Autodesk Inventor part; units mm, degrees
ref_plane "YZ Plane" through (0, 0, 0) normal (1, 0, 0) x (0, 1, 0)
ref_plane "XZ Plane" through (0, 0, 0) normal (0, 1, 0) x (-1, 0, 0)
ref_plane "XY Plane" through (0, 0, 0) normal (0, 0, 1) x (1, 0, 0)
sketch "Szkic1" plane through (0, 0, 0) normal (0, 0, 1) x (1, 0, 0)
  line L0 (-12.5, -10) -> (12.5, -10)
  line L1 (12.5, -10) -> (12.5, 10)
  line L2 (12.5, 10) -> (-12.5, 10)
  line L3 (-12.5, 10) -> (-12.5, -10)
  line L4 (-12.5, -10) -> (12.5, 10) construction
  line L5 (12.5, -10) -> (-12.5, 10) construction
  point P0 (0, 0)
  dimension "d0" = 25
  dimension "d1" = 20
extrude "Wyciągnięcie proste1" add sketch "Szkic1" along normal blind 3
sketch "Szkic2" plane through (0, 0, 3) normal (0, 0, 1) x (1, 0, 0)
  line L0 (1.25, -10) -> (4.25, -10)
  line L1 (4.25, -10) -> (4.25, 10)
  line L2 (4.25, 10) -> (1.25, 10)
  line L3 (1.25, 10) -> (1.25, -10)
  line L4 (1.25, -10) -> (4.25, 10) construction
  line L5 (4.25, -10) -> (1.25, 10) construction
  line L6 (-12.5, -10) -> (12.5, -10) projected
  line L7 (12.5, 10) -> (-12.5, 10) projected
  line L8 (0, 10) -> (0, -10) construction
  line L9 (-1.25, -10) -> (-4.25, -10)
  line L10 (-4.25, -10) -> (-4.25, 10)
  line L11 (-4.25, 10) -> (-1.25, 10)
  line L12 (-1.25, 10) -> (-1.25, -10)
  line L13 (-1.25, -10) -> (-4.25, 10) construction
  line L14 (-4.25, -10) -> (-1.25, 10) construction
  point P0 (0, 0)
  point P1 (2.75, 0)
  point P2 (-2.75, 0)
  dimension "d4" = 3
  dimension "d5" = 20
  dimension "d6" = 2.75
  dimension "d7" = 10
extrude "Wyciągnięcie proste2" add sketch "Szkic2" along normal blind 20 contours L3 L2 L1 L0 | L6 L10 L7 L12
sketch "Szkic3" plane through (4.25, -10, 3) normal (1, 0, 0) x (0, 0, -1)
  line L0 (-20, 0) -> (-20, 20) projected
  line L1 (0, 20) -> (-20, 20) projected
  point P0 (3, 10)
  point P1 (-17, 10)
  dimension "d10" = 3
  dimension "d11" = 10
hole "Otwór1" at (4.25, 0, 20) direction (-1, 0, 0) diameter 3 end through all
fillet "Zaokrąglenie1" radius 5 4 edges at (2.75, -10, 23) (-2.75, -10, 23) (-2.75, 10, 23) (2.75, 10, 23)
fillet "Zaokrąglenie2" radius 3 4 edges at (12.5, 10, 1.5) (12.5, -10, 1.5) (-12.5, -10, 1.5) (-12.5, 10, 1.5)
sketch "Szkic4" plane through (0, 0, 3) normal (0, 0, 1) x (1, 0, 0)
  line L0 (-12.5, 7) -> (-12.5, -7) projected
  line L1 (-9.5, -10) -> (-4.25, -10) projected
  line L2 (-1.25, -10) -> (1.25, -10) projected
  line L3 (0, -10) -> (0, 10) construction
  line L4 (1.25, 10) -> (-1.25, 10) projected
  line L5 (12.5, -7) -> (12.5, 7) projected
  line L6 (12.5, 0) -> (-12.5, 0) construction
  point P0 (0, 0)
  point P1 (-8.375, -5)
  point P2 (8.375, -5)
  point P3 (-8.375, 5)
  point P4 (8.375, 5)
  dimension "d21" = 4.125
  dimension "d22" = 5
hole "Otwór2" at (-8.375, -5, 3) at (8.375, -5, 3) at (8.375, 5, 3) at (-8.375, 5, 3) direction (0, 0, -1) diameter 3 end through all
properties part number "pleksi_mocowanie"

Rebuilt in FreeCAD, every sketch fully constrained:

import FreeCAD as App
import Part
import Sketcher

V = App.Vector


def edges_at(feature, points):
    """Names of the edges that pass closest to the given points."""
    edges = feature.Shape.Edges
    near = lambda p: min(range(len(edges)), key=lambda i: edges[i].distToShape(Part.Vertex(*p))[0])
    return sorted({f"Edge{near(p) + 1}" for p in points})

doc = App.newDocument("Part")
body = doc.addObject("PartDesign::Body", "Body")

# Sketch on XY plane
sketch1 = body.newObject("Sketcher::SketchObject", "Sketch")
sketch1.AttachmentSupport = (doc.getObject("XY_Plane"), [""])
sketch1.MapMode = "FlatFace"
sketch1.addGeometry(Part.LineSegment(V(-12.5, 10, 0), V(-12.5, -10, 0)), False)
sketch1.addGeometry(Part.LineSegment(V(-12.5, -10, 0), V(12.5, -10, 0)), False)
sketch1.addGeometry(Part.LineSegment(V(12.5, -10, 0), V(12.5, 10, 0)), False)
sketch1.addGeometry(Part.LineSegment(V(12.5, 10, 0), V(-12.5, 10, 0)), False)
sketch1.addConstraint(Sketcher.Constraint("Coincident", 0, 2, 1, 1))
sketch1.addConstraint(Sketcher.Constraint("Coincident", 1, 2, 2, 1))
sketch1.addConstraint(Sketcher.Constraint("Coincident", 2, 2, 3, 1))
sketch1.addConstraint(Sketcher.Constraint("Coincident", 3, 2, 0, 1))
sketch1.addConstraint(Sketcher.Constraint("Vertical", 0))
sketch1.addConstraint(Sketcher.Constraint("Horizontal", 1))
sketch1.addConstraint(Sketcher.Constraint("Vertical", 2))
sketch1.addConstraint(Sketcher.Constraint("Horizontal", 3))
sketch1.addConstraint(Sketcher.Constraint("Symmetric", 0, 2, 2, 2, -1, 1))
sketch1.addConstraint(Sketcher.Constraint("DistanceX", 1, 1, 1, 2, 25.0))
sketch1.addConstraint(Sketcher.Constraint("DistanceY", 0, 2, 0, 1, 20.0))
pad1 = body.newObject("PartDesign::Pad", "Pad")
pad1.Profile = sketch1
pad1.Length = 3

# Sketch on XY plane
sketch2 = body.newObject("Sketcher::SketchObject", "Sketch001")
sketch2.AttachmentSupport = (doc.getObject("XY_Plane"), [""])
sketch2.MapMode = "FlatFace"
sketch2.AttachmentOffset = App.Placement(V(0, 0, 3), App.Rotation())
sketch2.addGeometry(Part.LineSegment(V(1.25, 10, 0), V(1.25, -10, 0)), False)
sketch2.addGeometry(Part.LineSegment(V(1.25, -10, 0), V(4.25, -10, 0)), False)
sketch2.addGeometry(Part.LineSegment(V(4.25, -10, 0), V(4.25, 10, 0)), False)
sketch2.addGeometry(Part.LineSegment(V(4.25, 10, 0), V(1.25, 10, 0)), False)
sketch2.addGeometry(Part.LineSegment(V(-4.25, -10, 0), V(-1.25, -10, 0)), False)
sketch2.addGeometry(Part.LineSegment(V(-1.25, -10, 0), V(-1.25, 10, 0)), False)
sketch2.addGeometry(Part.LineSegment(V(-1.25, 10, 0), V(-4.25, 10, 0)), False)
sketch2.addGeometry(Part.LineSegment(V(-4.25, 10, 0), V(-4.25, -10, 0)), False)
sketch2.addConstraint(Sketcher.Constraint("Coincident", 0, 2, 1, 1))
sketch2.addConstraint(Sketcher.Constraint("Coincident", 1, 2, 2, 1))
sketch2.addConstraint(Sketcher.Constraint("Coincident", 2, 2, 3, 1))
sketch2.addConstraint(Sketcher.Constraint("Coincident", 3, 2, 0, 1))
sketch2.addConstraint(Sketcher.Constraint("Coincident", 4, 2, 5, 1))
sketch2.addConstraint(Sketcher.Constraint("Coincident", 5, 2, 6, 1))
sketch2.addConstraint(Sketcher.Constraint("Coincident", 6, 2, 7, 1))
sketch2.addConstraint(Sketcher.Constraint("Coincident", 7, 2, 4, 1))
sketch2.addConstraint(Sketcher.Constraint("Vertical", 0))
sketch2.addConstraint(Sketcher.Constraint("Horizontal", 1))
sketch2.addConstraint(Sketcher.Constraint("Vertical", 2))
sketch2.addConstraint(Sketcher.Constraint("Horizontal", 3))
sketch2.addConstraint(Sketcher.Constraint("Horizontal", 4))
sketch2.addConstraint(Sketcher.Constraint("Vertical", 5))
sketch2.addConstraint(Sketcher.Constraint("Horizontal", 6))
sketch2.addConstraint(Sketcher.Constraint("Vertical", 7))
sketch2.addConstraint(Sketcher.Constraint("Symmetric", 3, 2, 4, 2, -1, 1))
sketch2.addConstraint(Sketcher.Constraint("Symmetric", 1, 2, 6, 2, -1, 1))
sketch2.addConstraint(Sketcher.Constraint("Horizontal", 1, 2, 4, 2))
sketch2.addConstraint(Sketcher.Constraint("DistanceX", 1, 1, 1, 2, 3.0))
sketch2.addConstraint(Sketcher.Constraint("DistanceY", 0, 2, 0, 1, 20.0))
sketch2.addConstraint(Sketcher.Constraint("DistanceX", 4, 2, 0, 2, 2.5))
pad2 = body.newObject("PartDesign::Pad", "Pad001")
pad2.Profile = sketch2
pad2.Length = 20

# Sketch on YZ plane
sketch3 = body.newObject("Sketcher::SketchObject", "Sketch002")
sketch3.AttachmentSupport = (doc.getObject("YZ_Plane"), [""])
sketch3.MapMode = "FlatFace"
sketch3.AttachmentOffset = App.Placement(V(0, 0, 4.25), App.Rotation())
sketch3.addGeometry(Part.Circle(V(0, 20, 0), V(0, 0, 1), 1.5), False)
sketch3.addConstraint(Sketcher.Constraint("PointOnObject", 0, 3, -2))
sketch3.addConstraint(Sketcher.Constraint("Diameter", 0, 3.0))
sketch3.addConstraint(Sketcher.Constraint("DistanceY", -1, 1, 0, 3, 20.0))
doc.recompute()
hole = body.newObject("PartDesign::Hole", "Hole")
hole.Profile = sketch3
hole.ThreadType = "None"
hole.Diameter = 3
hole.DepthType = "ThroughAll"
doc.recompute()

fillet = body.newObject("PartDesign::Fillet", "Fillet")
fillet.Base = (hole, edges_at(hole, [
    (2.75, -10, 23),
    (-2.75, -10, 23),
    (-2.75, 10, 23),
    (2.75, 10, 23),
]))
fillet.Radius = 5
doc.recompute()

fillet2 = body.newObject("PartDesign::Fillet", "Fillet001")
fillet2.Base = (fillet, edges_at(fillet, [
    (12.5, 10, 1.5),
    (12.5, -10, 1.5),
    (-12.5, -10, 1.5),
    (-12.5, 10, 1.5),
]))
fillet2.Radius = 3

# Sketch on XY plane
sketch4 = body.newObject("Sketcher::SketchObject", "Sketch003")
sketch4.AttachmentSupport = (doc.getObject("XY_Plane"), [""])
sketch4.MapMode = "FlatFace"
sketch4.AttachmentOffset = App.Placement(V(0, 0, 3), App.Rotation())
sketch4.addGeometry(Part.Circle(V(-8.375, -5, 0), V(0, 0, 1), 1.5), False)
sketch4.addGeometry(Part.Circle(V(8.375, -5, 0), V(0, 0, 1), 1.5), False)
sketch4.addGeometry(Part.Circle(V(8.375, 5, 0), V(0, 0, 1), 1.5), False)
sketch4.addGeometry(Part.Circle(V(-8.375, 5, 0), V(0, 0, 1), 1.5), False)
sketch4.addConstraint(Sketcher.Constraint("Equal", 0, 1))
sketch4.addConstraint(Sketcher.Constraint("Equal", 1, 2))
sketch4.addConstraint(Sketcher.Constraint("Equal", 2, 3))
sketch4.addConstraint(Sketcher.Constraint("Symmetric", 0, 3, 2, 3, -1, 1))
sketch4.addConstraint(Sketcher.Constraint("Symmetric", 1, 3, 3, 3, -1, 1))
sketch4.addConstraint(Sketcher.Constraint("Symmetric", 0, 3, 1, 3, -2))
sketch4.addConstraint(Sketcher.Constraint("Diameter", 0, 3.0))
sketch4.addConstraint(Sketcher.Constraint("DistanceY", 0, 3, -1, 1, 5.0))
sketch4.addConstraint(Sketcher.Constraint("DistanceX", 0, 3, 1, 3, 16.75))
doc.recompute()
hole2 = body.newObject("PartDesign::Hole", "Hole001")
hole2.Profile = sketch4
hole2.ThreadType = "None"
hole2.Diameter = 3
hole2.DepthType = "ThroughAll"

doc.recompute()
